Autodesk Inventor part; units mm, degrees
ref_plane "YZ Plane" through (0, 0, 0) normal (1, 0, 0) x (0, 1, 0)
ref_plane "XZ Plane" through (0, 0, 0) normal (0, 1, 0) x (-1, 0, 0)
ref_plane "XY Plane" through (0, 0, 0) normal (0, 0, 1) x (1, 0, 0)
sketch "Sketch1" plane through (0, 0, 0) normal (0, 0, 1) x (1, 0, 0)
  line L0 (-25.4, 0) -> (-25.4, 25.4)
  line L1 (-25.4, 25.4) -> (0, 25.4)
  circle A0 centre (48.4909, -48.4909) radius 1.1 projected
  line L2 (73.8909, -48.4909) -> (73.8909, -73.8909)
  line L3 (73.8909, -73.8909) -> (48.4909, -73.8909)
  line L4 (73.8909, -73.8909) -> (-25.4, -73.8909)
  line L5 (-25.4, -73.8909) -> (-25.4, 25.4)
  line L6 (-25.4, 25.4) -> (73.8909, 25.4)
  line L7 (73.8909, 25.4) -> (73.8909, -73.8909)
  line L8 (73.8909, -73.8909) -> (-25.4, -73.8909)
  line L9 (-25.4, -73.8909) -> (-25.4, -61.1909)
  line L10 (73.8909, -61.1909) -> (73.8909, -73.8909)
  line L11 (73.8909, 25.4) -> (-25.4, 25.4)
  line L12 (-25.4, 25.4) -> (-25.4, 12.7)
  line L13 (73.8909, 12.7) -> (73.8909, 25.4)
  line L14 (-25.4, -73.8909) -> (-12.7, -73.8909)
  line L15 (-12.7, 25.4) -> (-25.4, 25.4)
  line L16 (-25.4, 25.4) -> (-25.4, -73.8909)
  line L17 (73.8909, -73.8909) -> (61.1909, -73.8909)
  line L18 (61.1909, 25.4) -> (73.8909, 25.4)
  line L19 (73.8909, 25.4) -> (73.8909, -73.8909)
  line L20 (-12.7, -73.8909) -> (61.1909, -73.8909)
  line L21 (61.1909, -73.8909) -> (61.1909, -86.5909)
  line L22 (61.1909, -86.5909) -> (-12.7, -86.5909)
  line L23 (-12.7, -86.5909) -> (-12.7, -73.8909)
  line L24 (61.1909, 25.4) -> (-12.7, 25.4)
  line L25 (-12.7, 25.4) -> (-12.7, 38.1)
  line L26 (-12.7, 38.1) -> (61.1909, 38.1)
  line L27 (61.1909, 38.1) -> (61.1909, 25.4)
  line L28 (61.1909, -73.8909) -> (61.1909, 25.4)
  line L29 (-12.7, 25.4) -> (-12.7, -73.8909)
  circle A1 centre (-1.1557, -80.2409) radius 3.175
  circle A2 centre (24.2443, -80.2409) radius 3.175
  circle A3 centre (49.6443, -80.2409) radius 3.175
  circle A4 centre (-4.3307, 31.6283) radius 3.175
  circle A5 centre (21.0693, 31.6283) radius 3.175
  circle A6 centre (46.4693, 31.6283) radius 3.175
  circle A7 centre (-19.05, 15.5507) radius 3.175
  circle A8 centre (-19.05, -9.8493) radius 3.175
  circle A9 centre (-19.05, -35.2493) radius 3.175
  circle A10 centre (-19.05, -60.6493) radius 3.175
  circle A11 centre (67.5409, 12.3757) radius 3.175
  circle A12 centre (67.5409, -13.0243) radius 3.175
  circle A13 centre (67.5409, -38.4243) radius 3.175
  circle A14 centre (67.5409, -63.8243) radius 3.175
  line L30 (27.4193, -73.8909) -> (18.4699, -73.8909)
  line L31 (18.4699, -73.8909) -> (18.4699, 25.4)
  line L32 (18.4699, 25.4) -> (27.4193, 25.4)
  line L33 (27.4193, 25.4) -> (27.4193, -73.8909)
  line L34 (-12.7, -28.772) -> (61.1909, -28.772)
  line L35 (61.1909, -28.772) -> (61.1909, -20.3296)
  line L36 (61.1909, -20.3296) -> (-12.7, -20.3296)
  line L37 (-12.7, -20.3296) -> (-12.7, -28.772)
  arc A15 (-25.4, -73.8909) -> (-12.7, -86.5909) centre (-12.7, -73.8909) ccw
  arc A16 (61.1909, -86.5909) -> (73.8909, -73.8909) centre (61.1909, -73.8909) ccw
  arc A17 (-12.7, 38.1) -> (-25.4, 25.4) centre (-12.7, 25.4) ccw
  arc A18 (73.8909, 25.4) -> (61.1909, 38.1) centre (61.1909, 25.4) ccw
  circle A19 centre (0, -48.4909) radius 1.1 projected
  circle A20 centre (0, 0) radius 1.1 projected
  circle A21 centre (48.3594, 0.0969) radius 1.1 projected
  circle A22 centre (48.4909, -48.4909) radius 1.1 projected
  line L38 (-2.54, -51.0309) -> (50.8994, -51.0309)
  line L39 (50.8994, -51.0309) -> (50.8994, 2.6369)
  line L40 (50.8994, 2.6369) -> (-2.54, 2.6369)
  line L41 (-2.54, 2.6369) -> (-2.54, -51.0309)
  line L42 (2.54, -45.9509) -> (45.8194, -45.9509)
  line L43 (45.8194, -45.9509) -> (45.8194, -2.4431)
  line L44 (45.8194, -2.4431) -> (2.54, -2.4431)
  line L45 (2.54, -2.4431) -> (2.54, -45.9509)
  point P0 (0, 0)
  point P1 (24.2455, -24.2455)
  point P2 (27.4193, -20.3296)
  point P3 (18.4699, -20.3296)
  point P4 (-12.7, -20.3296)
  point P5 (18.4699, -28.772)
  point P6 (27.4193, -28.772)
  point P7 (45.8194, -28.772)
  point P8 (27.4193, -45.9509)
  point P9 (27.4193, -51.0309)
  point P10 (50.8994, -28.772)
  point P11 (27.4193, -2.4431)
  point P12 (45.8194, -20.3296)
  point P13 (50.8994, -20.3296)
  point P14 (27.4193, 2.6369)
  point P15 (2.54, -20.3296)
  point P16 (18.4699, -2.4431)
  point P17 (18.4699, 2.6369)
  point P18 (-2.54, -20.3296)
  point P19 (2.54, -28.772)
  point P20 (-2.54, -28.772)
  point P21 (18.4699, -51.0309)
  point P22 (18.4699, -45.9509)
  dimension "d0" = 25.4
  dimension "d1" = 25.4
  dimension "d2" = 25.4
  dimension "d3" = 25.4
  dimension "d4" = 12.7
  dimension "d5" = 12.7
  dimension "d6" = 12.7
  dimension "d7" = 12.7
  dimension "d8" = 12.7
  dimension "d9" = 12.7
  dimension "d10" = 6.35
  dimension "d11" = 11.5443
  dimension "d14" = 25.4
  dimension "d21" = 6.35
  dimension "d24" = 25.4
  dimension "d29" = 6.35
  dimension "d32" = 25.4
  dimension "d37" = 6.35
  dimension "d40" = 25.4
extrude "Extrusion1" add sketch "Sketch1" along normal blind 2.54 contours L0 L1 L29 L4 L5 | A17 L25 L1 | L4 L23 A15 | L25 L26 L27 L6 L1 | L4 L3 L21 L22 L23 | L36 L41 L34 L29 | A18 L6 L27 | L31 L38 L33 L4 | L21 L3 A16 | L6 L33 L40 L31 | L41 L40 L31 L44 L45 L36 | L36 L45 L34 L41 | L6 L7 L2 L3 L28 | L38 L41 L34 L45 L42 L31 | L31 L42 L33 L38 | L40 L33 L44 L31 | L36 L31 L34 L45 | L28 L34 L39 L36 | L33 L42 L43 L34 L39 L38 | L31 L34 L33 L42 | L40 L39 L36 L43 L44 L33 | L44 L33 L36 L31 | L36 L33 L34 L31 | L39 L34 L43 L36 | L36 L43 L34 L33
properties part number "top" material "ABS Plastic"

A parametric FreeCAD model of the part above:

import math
import FreeCAD as App
import Part
import Sketcher
from FreeCAD import Vector
Q = App.Units.Quantity


def add_polygon(sketch, points):
    """Adds a closed chain of lines whose ends are joined by coincident constraints."""
    first, n = sketch.GeometryCount, len(points)
    for a, b in zip(points, points[1:] + points[:1]):
        sketch.addGeometry(Part.LineSegment(App.Vector(*a, 0), App.Vector(*b, 0)), False)
    for i in range(n):
        sketch.addConstraint(Sketcher.Constraint("Coincident", first + i, 2, first + (i + 1) % n, 1))

doc = App.newDocument("Part")
body = doc.addObject("PartDesign::Body", "Body")

# Sketch on XY plane
sketch1 = body.newObject("Sketcher::SketchObject", "Sketch")
sketch1.AttachmentSupport = (doc.getObject("XY_Plane"), [""])
sketch1.MapMode = "FlatFace"
sketch1.addGeometry(Part.ArcOfCircle(Part.Circle(Vector(-12.7, -73.8909, 0), Vector(0, 0, 1), 12.7), math.radians(180), math.radians(270)), False)  # 0
sketch1.addGeometry(Part.LineSegment(Vector(-12.7, -86.5909, 0), Vector(61.1909, -86.5909, 0)), False)  # 1
sketch1.addGeometry(Part.ArcOfCircle(Part.Circle(Vector(61.1909, -73.8909, 0), Vector(0, 0, 1), 12.7), math.radians(-90), math.radians(0)), False)  # 2
sketch1.addGeometry(Part.LineSegment(Vector(73.8909, -73.8909, 0), Vector(73.8909, 25.4, 0)), False)  # 3
sketch1.addGeometry(Part.ArcOfCircle(Part.Circle(Vector(61.1909, 25.4, 0), Vector(0, 0, 1), 12.7), math.radians(0), math.radians(90)), False)  # 4
sketch1.addGeometry(Part.LineSegment(Vector(61.1909, 38.1, 0), Vector(-12.7, 38.1, 0)), False)  # 5
sketch1.addGeometry(Part.ArcOfCircle(Part.Circle(Vector(-12.7, 25.4, 0), Vector(0, 0, 1), 12.7), math.radians(90), math.radians(180)), False)  # 6
sketch1.addGeometry(Part.LineSegment(Vector(-25.4, 25.4, 0), Vector(-25.4, -73.8909, 0)), False)  # 7
add_polygon(sketch1, [(-12.7, -20.3296), (-12.7, 25.4), (18.4699, 25.4), (18.4699, 2.6369), (-2.54, 2.6369), (-2.54, -20.3296)])  # lines 8-13
add_polygon(sketch1, [(-12.7, -73.8909), (-12.7, -28.772), (-2.54, -28.772), (-2.54, -51.0309), (18.4699, -51.0309), (18.4699, -73.8909)])  # lines 14-19
sketch1.addGeometry(Part.Circle(Vector(-19.05, -60.6493, 0), Vector(0, 0, 1), 3.175), False)  # 20
sketch1.addGeometry(Part.Circle(Vector(-19.05, -35.2493, 0), Vector(0, 0, 1), 3.175), False)  # 21
sketch1.addGeometry(Part.Circle(Vector(-19.05, -9.8493, 0), Vector(0, 0, 1), 3.175), False)  # 22
sketch1.addGeometry(Part.Circle(Vector(-19.05, 15.5507, 0), Vector(0, 0, 1), 3.175), False)  # 23
sketch1.addGeometry(Part.Circle(Vector(46.4693, 31.6283, 0), Vector(0, 0, 1), 3.175), False)  # 24
add_polygon(sketch1, [(27.4193, 25.4), (61.1909, 25.4), (61.1909, -20.3296), (50.8994, -20.3296), (50.8994, 2.6369), (27.4193, 2.6369)])  # lines 25-30
sketch1.addGeometry(Part.Circle(Vector(-4.3307, 31.6283, 0), Vector(0, 0, 1), 3.175), False)  # 31
sketch1.addGeometry(Part.Circle(Vector(21.0693, 31.6283, 0), Vector(0, 0, 1), 3.175), False)  # 32
add_polygon(sketch1, [(27.4193, -73.8909), (27.4193, -51.0309), (50.8994, -51.0309), (50.8994, -28.772), (61.1909, -28.772), (61.1909, -73.8909)])  # lines 33-38
sketch1.addGeometry(Part.Circle(Vector(49.6443, -80.2409, 0), Vector(0, 0, 1), 3.175), False)  # 39
sketch1.addGeometry(Part.Circle(Vector(-1.1557, -80.2409, 0), Vector(0, 0, 1), 3.175), False)  # 40
sketch1.addGeometry(Part.Circle(Vector(24.2443, -80.2409, 0), Vector(0, 0, 1), 3.175), False)  # 41
add_polygon(sketch1, [(2.54, -2.4431), (18.4699, -2.4431), (18.4699, -20.3296), (2.54, -20.3296)])  # lines 42-45
sketch1.addGeometry(Part.Circle(Vector(0, 0, 0), Vector(0, 0, 1), 1.1), False)  # 46
add_polygon(sketch1, [(2.54, -28.772), (18.4699, -28.772), (18.4699, -45.9509), (2.54, -45.9509)])  # lines 47-50
sketch1.addGeometry(Part.Circle(Vector(0, -48.4909, 0), Vector(0, 0, 1), 1.1), False)  # 51
sketch1.addGeometry(Part.Circle(Vector(67.5409, 12.3757, 0), Vector(0, 0, 1), 3.175), False)  # 52
sketch1.addGeometry(Part.Circle(Vector(67.5409, -13.0243, 0), Vector(0, 0, 1), 3.175), False)  # 53
sketch1.addGeometry(Part.Circle(Vector(67.5409, -63.8243, 0), Vector(0, 0, 1), 3.175), False)  # 54
sketch1.addGeometry(Part.Circle(Vector(67.5409, -38.4243, 0), Vector(0, 0, 1), 3.175), False)  # 55
add_polygon(sketch1, [(27.4193, -20.3296), (27.4193, -2.4431), (45.8194, -2.4431), (45.8194, -20.3296)])  # lines 56-59
sketch1.addGeometry(Part.Circle(Vector(48.3594, 0.0969, 0), Vector(0, 0, 1), 1.1), False)  # 60
add_polygon(sketch1, [(27.4193, -28.772), (45.8194, -28.772), (45.8194, -45.9509), (27.4193, -45.9509)])  # lines 61-64
sketch1.addGeometry(Part.Circle(Vector(48.4909, -48.4909, 0), Vector(0, 0, 1), 1.1), False)  # 65
sketch1.addConstraint([
    Sketcher.Constraint("Tangent", 0, 2, 1, 1),
    Sketcher.Constraint("Tangent", 1, 2, 2, 1),
    Sketcher.Constraint("Tangent", 2, 2, 3, 1),
    Sketcher.Constraint("Tangent", 3, 2, 4, 1),
    Sketcher.Constraint("Tangent", 4, 2, 5, 1),
    Sketcher.Constraint("Tangent", 5, 2, 6, 1),
    Sketcher.Constraint("Tangent", 6, 2, 7, 1),
    Sketcher.Constraint("Tangent", 7, 2, 0, 1),
    Sketcher.Constraint("Horizontal", 1),
    Sketcher.Constraint("Vertical", 3),
    Sketcher.Constraint("Horizontal", 5),
    Sketcher.Constraint("Vertical", 7),
    Sketcher.Constraint("Vertical", 8),
    Sketcher.Constraint("Horizontal", 9),
    Sketcher.Constraint("Vertical", 10),
    Sketcher.Constraint("Horizontal", 11),
    Sketcher.Constraint("Vertical", 12),
    Sketcher.Constraint("Horizontal", 13),
    Sketcher.Constraint("Vertical", 14),
    Sketcher.Constraint("Horizontal", 15),
    Sketcher.Constraint("Vertical", 16),
    Sketcher.Constraint("Horizontal", 17),
    Sketcher.Constraint("Vertical", 18),
    Sketcher.Constraint("Horizontal", 19),
    Sketcher.Constraint("Horizontal", 25),
    Sketcher.Constraint("Vertical", 26),
    Sketcher.Constraint("Horizontal", 27),
    Sketcher.Constraint("Vertical", 28),
    Sketcher.Constraint("Horizontal", 29),
    Sketcher.Constraint("Vertical", 30),
    Sketcher.Constraint("Vertical", 33),
    Sketcher.Constraint("Horizontal", 34),
    Sketcher.Constraint("Vertical", 35),
    Sketcher.Constraint("Horizontal", 36),
    Sketcher.Constraint("Vertical", 37),
    Sketcher.Constraint("Horizontal", 38),
    Sketcher.Constraint("Horizontal", 42),
    Sketcher.Constraint("Vertical", 43),
    Sketcher.Constraint("Horizontal", 44),
    Sketcher.Constraint("Vertical", 45),
    Sketcher.Constraint("Horizontal", 47),
    Sketcher.Constraint("Vertical", 48),
    Sketcher.Constraint("Horizontal", 49),
    Sketcher.Constraint("Vertical", 50),
    Sketcher.Constraint("Vertical", 56),
    Sketcher.Constraint("Horizontal", 57),
    Sketcher.Constraint("Vertical", 58),
    Sketcher.Constraint("Horizontal", 59),
    Sketcher.Constraint("Horizontal", 61),
    Sketcher.Constraint("Vertical", 62),
    Sketcher.Constraint("Horizontal", 63),
    Sketcher.Constraint("Vertical", 64),
    Sketcher.Constraint("Coincident", 46, 3, -1, 1),
    Sketcher.Constraint("Coincident", 8, 2, 6, 3),
    Sketcher.Constraint("Coincident", 19, 2, 0, 3),
    Sketcher.Constraint("Coincident", 25, 2, 4, 3),
    Sketcher.Constraint("Coincident", 37, 2, 2, 3),
    Sketcher.Constraint("Equal", 0, 2),
    Sketcher.Constraint("Equal", 2, 4),
    Sketcher.Constraint("Equal", 4, 6),
    Sketcher.Constraint("Equal", 20, 21),
    Sketcher.Constraint("Equal", 21, 22),
    Sketcher.Constraint("Equal", 22, 23),
    Sketcher.Constraint("Equal", 23, 24),
    Sketcher.Constraint("Equal", 24, 31),
    Sketcher.Constraint("Equal", 31, 32),
    Sketcher.Constraint("Equal", 32, 39),
    Sketcher.Constraint("Equal", 39, 40),
    Sketcher.Constraint("Equal", 40, 41),
    Sketcher.Constraint("Equal", 46, 51),
    Sketcher.Constraint("Equal", 41, 52),
    Sketcher.Constraint("Equal", 52, 53),
    Sketcher.Constraint("Equal", 53, 54),
    Sketcher.Constraint("Equal", 54, 55),
    Sketcher.Constraint("Equal", 51, 60),
    Sketcher.Constraint("Equal", 60, 65),
    Sketcher.Constraint("Symmetric", 12, 2, 44, 2, -2),
    Sketcher.Constraint("Symmetric", 15, 2, 50, 2, -2),
    Sketcher.Constraint("PointOnObject", 51, 3, -2),
    Sketcher.Constraint("Horizontal", 24, 3, 31, 3),
    Sketcher.Constraint("Horizontal", 31, 3, 32, 3),
    Sketcher.Constraint("Horizontal", 39, 3, 40, 3),
    Sketcher.Constraint("Horizontal", 40, 3, 41, 3),
    Sketcher.Constraint("Horizontal", 51, 3, 65, 3),
    Sketcher.Constraint("Horizontal", 13, 2, 26, 2),
    Sketcher.Constraint("Horizontal", 11, 2, 28, 2),
    Sketcher.Constraint("Horizontal", 17, 2, 33, 2),
    Sketcher.Constraint("Horizontal", 15, 2, 35, 2),
    Sketcher.Constraint("Horizontal", 45, 2, 56, 2),
    Sketcher.Constraint("Horizontal", 44, 2, 58, 2),
    Sketcher.Constraint("Horizontal", 50, 2, 61, 2),
    Sketcher.Constraint("Horizontal", 49, 2, 62, 2),
    Sketcher.Constraint("Vertical", 20, 3, 21, 3),
    Sketcher.Constraint("Vertical", 21, 3, 22, 3),
    Sketcher.Constraint("Vertical", 22, 3, 23, 3),
    Sketcher.Constraint("Vertical", 52, 3, 53, 3),
    Sketcher.Constraint("Vertical", 53, 3, 54, 3),
    Sketcher.Constraint("Vertical", 54, 3, 55, 3),
    Sketcher.Constraint("Vertical", 12, 2, 15, 2),
    Sketcher.Constraint("Vertical", 10, 2, 17, 2),
    Sketcher.Constraint("Vertical", 30, 2, 33, 2),
    Sketcher.Constraint("Vertical", 28, 2, 34, 2),
    Sketcher.Constraint("Vertical", 18, 2, 42, 2),
    Sketcher.Constraint("Vertical", 43, 2, 47, 2),
    Sketcher.Constraint("Vertical", 38, 2, 56, 2),
    Sketcher.Constraint("Vertical", 58, 2, 61, 2),
    Sketcher.Constraint("Vertical", 59, 2, 63, 2),
    Sketcher.Constraint("Radius", 0, Q("0.5 in")),
    Sketcher.Constraint("Diameter", 20, Q("0.25 in")),
    Sketcher.Constraint("DistanceY", -1, 1, 4, 3, Q("1 in")),
    Sketcher.Constraint("DistanceX", 6, 2, -1, 1, Q("1 in")),
    Sketcher.Constraint("DistanceX", 13, 2, 13, 1, Q("0.4 in")),
    Sketcher.Constraint("DistanceY", 18, 2, 18, 1, Q("0.9 in")),
    Sketcher.Constraint("Diameter", 46, Q("2.2 mm")),
    Sketcher.Constraint("DistanceX", 20, 3, -1, 1, Q("0.75 in")),
    Sketcher.Constraint("DistanceX", 1, 1, 1, 2, Q("2.9091 in")),
    Sketcher.Constraint("DistanceX", 25, 1, 25, 2, Q("1.3296 in")),
    Sketcher.Constraint("DistanceY", 3, 1, 3, 2, Q("3.9091 in")),
    Sketcher.Constraint("DistanceY", 12, 2, 12, 1, Q("0.9042 in")),
    Sketcher.Constraint("DistanceY", 43, 2, 43, 1, Q("0.7042 in")),
    Sketcher.Constraint("DistanceX", 9, 1, 9, 2, Q("31.17 mm")),
    Sketcher.Constraint("DistanceX", 27, 2, 27, 1, Q("10.2915 mm")),
    Sketcher.Constraint("DistanceX", 57, 1, 57, 2, Q("0.7244094 in")),
    Sketcher.Constraint("DistanceY", 8, 1, 8, 2, Q("45.7296 mm")),
    Sketcher.Constraint("DistanceY", 14, 1, 14, 2, Q("45.119 mm")),
    Sketcher.Constraint("DistanceY", 48, 2, 48, 1, Q("17.179 mm")),
    Sketcher.Constraint("DistanceX", -1, 1, 24, 3, Q("1.8295 in")),
    Sketcher.Constraint("DistanceY", -1, 1, 24, 3, Q("1.2452 in")),
    Sketcher.Constraint("DistanceX", 31, 3, -1, 1, Q("0.1705 in")),
    Sketcher.Constraint("DistanceX", -1, 1, 32, 3, Q("0.8295 in")),
    Sketcher.Constraint("DistanceX", -1, 1, 39, 3, Q("1.9545 in")),
    Sketcher.Constraint("DistanceY", 39, 3, -1, 1, Q("3.1591 in")),
    Sketcher.Constraint("DistanceX", 40, 3, -1, 1, Q("0.0455 in")),
    Sketcher.Constraint("DistanceX", -1, 1, 41, 3, Q("0.9545 in")),
    Sketcher.Constraint("DistanceY", 51, 3, -1, 1, Q("1.9091 in")),
    Sketcher.Constraint("DistanceX", -1, 1, 52, 3, Q("2.6591 in")),
    Sketcher.Constraint("DistanceX", -1, 1, 65, 3, Q("1.9091 in")),
    Sketcher.Constraint("DistanceY", 20, 3, -1, 1, Q("60.6493 mm")),
    Sketcher.Constraint("DistanceY", 21, 3, -1, 1, Q("35.2493 mm")),
    Sketcher.Constraint("DistanceY", 22, 3, -1, 1, Q("9.8493 mm")),
    Sketcher.Constraint("DistanceY", -1, 1, 23, 3, Q("15.5507 mm")),
    Sketcher.Constraint("DistanceY", -1, 1, 52, 3, Q("12.3757 mm")),
    Sketcher.Constraint("DistanceY", 53, 3, -1, 1, Q("13.0243 mm")),
    Sketcher.Constraint("DistanceY", 54, 3, -1, 1, Q("63.8243 mm")),
    Sketcher.Constraint("DistanceY", 55, 3, -1, 1, Q("38.4243 mm")),
    Sketcher.Constraint("DistanceX", -1, 1, 60, 3, Q("48.3594 mm")),
    Sketcher.Constraint("DistanceY", -1, 1, 60, 3, Q("0.097 mm")),
])
pad1 = body.newObject("PartDesign::Pad", "Pad")
pad1.Profile = sketch1
pad1.Length = Q("0.1 in")

doc.recompute()
